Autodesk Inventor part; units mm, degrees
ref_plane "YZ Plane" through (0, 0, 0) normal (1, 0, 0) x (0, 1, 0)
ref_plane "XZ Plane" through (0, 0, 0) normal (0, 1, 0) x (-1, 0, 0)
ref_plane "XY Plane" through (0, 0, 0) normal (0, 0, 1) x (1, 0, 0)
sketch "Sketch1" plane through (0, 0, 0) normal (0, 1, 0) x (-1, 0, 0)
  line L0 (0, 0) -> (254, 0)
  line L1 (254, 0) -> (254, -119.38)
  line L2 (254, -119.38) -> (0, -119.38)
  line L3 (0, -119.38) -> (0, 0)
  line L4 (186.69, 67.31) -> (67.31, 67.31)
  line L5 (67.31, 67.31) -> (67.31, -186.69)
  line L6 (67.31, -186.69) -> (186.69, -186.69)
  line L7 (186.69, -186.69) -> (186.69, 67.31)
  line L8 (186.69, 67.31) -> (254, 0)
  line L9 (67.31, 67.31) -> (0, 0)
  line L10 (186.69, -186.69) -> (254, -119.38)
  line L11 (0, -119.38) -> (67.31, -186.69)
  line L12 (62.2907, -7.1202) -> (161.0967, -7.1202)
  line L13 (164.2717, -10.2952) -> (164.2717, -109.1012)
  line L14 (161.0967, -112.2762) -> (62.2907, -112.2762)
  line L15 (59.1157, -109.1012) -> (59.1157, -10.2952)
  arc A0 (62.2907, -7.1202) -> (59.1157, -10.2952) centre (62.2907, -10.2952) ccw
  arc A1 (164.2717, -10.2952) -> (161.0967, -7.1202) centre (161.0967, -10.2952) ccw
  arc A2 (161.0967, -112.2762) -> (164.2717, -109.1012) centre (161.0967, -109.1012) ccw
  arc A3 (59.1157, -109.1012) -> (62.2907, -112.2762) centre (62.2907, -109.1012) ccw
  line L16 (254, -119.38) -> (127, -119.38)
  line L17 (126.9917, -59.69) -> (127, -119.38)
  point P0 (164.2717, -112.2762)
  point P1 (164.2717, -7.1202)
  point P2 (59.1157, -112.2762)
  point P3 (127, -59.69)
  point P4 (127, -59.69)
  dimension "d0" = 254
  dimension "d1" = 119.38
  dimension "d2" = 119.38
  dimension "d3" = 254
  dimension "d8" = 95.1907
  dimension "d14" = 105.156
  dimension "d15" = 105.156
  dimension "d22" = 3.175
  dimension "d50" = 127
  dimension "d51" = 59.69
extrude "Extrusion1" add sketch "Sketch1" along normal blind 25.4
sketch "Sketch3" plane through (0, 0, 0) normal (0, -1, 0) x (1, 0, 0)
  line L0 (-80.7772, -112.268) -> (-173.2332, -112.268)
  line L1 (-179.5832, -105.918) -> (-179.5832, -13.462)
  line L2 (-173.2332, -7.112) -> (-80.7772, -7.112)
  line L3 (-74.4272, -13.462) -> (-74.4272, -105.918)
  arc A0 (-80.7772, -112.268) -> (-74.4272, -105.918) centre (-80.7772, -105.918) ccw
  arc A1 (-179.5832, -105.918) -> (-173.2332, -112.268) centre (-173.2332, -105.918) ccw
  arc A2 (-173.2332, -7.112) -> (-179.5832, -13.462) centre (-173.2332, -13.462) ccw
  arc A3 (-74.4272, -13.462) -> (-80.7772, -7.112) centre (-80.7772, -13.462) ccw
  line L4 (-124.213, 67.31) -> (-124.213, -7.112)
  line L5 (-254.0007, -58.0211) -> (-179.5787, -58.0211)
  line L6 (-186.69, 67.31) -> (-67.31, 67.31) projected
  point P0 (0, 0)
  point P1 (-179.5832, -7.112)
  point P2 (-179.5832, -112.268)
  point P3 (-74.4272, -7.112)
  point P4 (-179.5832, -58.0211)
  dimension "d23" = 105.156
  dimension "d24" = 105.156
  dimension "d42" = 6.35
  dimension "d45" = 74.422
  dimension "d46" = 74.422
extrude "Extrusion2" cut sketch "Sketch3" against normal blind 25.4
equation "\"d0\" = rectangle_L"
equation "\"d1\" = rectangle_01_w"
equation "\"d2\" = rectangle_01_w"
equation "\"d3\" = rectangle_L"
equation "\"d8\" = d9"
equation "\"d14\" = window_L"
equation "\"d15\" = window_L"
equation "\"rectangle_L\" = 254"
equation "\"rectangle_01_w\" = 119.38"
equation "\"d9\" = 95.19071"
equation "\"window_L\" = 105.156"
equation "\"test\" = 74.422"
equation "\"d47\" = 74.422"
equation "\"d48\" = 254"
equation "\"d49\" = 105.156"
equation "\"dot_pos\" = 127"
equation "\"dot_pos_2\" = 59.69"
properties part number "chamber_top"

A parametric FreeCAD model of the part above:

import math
import FreeCAD as App
import Part
import Sketcher
Q = App.Units.Quantity

doc = App.newDocument("Part")
params = doc.addObject("Spreadsheet::Sheet", "Params")
for row, (alias, value) in enumerate([
    ("sketch1_width", "4.7 in"),
    ("pad1_length", "1 in"),
    ("sketch2_radius", "0.25 in"),
    ("sketch2_width", "3.64 in"),
    ("pocket1_length", "1 in"),
], start=1):
    params.set(f"A{row}", alias)
    params.set(f"B{row}", "=" + value)
    params.setAlias(f"B{row}", alias)

body = doc.addObject("PartDesign::Body", "Body")

# Sketch on XZ plane
sketch1 = body.newObject("Sketcher::SketchObject", "Sketch")
sketch1.AttachmentSupport = (doc.getObject("XZ_Plane"), [""])
sketch1.MapMode = "FlatFace"
sketch1.addGeometry([
    Part.LineSegment(App.Vector(-67, 67, 0), App.Vector(0, 0, 0)),  # 0
    Part.LineSegment(App.Vector(0, 0, 0), App.Vector(0, -119, 0)),  # 1
    Part.LineSegment(App.Vector(0, -119, 0), App.Vector(-67, -187, 0)),  # 2
    Part.LineSegment(App.Vector(-67, -187, 0), App.Vector(-187, -187, 0)),  # 3
    Part.LineSegment(App.Vector(-187, -187, 0), App.Vector(-254, -119, 0)),  # 4
    Part.LineSegment(App.Vector(-254, -119, 0), App.Vector(-254, 0, 0)),  # 5
    Part.LineSegment(App.Vector(-254, 0, 0), App.Vector(-187, 67, 0)),  # 6
    Part.LineSegment(App.Vector(-187, 67, 0), App.Vector(-67, 67, 0)),  # 7
], False)
sketch1.addConstraint([
    Sketcher.Constraint("Coincident", 0, 2, 1, 1),
    Sketcher.Constraint("Coincident", 1, 2, 2, 1),
    Sketcher.Constraint("Coincident", 2, 2, 3, 1),
    Sketcher.Constraint("Coincident", 3, 2, 4, 1),
    Sketcher.Constraint("Coincident", 4, 2, 5, 1),
    Sketcher.Constraint("Coincident", 5, 2, 6, 1),
    Sketcher.Constraint("Coincident", 6, 2, 7, 1),
    Sketcher.Constraint("Coincident", 7, 2, 0, 1),
    Sketcher.Constraint("Vertical", 1),
    Sketcher.Constraint("Horizontal", 3),
    Sketcher.Constraint("Vertical", 5),
    Sketcher.Constraint("Horizontal", 7),
    Sketcher.Constraint("Coincident", 0, 2, -1, 1),
    Sketcher.Constraint("PointOnObject", 5, 2, -1),
    Sketcher.Constraint("Perpendicular", 0, 2),
    Sketcher.Constraint("Perpendicular", 2, 4),
    Sketcher.Constraint("Perpendicular", 4, 6),
    Sketcher.Constraint("Horizontal", 1, 2, 4, 2),
    Sketcher.Constraint("Vertical", 3, 2, 6, 2),
    Sketcher.Constraint("Vertical", 2, 2, 7, 2),
    Sketcher.Constraint("Equal", 7, 1),
    Sketcher.Constraint("DistanceX", 3, 2, 3, 1, Q("4.7 in")),
    Sketcher.Constraint("DistanceX", 4, 2, -1, 1, Q("10 in")),
])
sketch1.setExpression("Constraints[21]", "Params.sketch1_width")
pad1 = body.newObject("PartDesign::Pad", "Pad")
pad1.Profile = sketch1
pad1.setExpression("Length", "Params.pad1_length")
pad1.Reversed = True

# Sketch on XZ plane
sketch2 = body.newObject("Sketcher::SketchObject", "Sketch001")
sketch2.AttachmentSupport = (doc.getObject("XZ_Plane"), [""])
sketch2.MapMode = "FlatFace"
sketch2.addGeometry([
    Part.LineSegment(App.Vector(-173, -112, 0), App.Vector(-81, -112, 0)),  # 0
    Part.ArcOfCircle(Part.Circle(App.Vector(-81, -106, 0), App.Vector(0, 0, 1), 6), math.radians(-90), math.radians(0)),  # 1
    Part.LineSegment(App.Vector(-74, -106, 0), App.Vector(-74, -13, 0)),  # 2
    Part.ArcOfCircle(Part.Circle(App.Vector(-81, -13, 0), App.Vector(0, 0, 1), 6), math.radians(0), math.radians(90)),  # 3
    Part.LineSegment(App.Vector(-81, -7, 0), App.Vector(-173, -7, 0)),  # 4
    Part.ArcOfCircle(Part.Circle(App.Vector(-173, -13, 0), App.Vector(0, 0, 1), 6), math.radians(90), math.radians(180)),  # 5
    Part.LineSegment(App.Vector(-180, -13, 0), App.Vector(-180, -106, 0)),  # 6
    Part.ArcOfCircle(Part.Circle(App.Vector(-173, -106, 0), App.Vector(0, 0, 1), 6), math.radians(180), math.radians(270)),  # 7
], False)
sketch2.addConstraint([
    Sketcher.Constraint("Tangent", 0, 2, 1, 1),
    Sketcher.Constraint("Tangent", 1, 2, 2, 1),
    Sketcher.Constraint("Tangent", 2, 2, 3, 1),
    Sketcher.Constraint("Tangent", 3, 2, 4, 1),
    Sketcher.Constraint("Tangent", 4, 2, 5, 1),
    Sketcher.Constraint("Tangent", 5, 2, 6, 1),
    Sketcher.Constraint("Tangent", 6, 2, 7, 1),
    Sketcher.Constraint("Tangent", 7, 2, 0, 1),
    Sketcher.Constraint("Horizontal", 0),
    Sketcher.Constraint("Vertical", 2),
    Sketcher.Constraint("Horizontal", 4),
    Sketcher.Constraint("Vertical", 6),
    Sketcher.Constraint("Equal", 1, 3),
    Sketcher.Constraint("Equal", 3, 5),
    Sketcher.Constraint("Equal", 5, 7),
    Sketcher.Constraint("Equal", 4, 2),
    Sketcher.Constraint("Radius", 1, Q("0.25 in")),
    Sketcher.Constraint("DistanceX", 0, 1, 0, 2, Q("3.64 in")),
    Sketcher.Constraint("DistanceY", 1, 3, -1, 1, Q("4.17 in")),
    Sketcher.Constraint("DistanceX", 1, 3, -1, 1, Q("3.1802 in")),
])
sketch2.setExpression("Constraints[16]", "Params.sketch2_radius")
sketch2.setExpression("Constraints[17]", "Params.sketch2_width")
pocket1 = body.newObject("PartDesign::Pocket", "Pocket")
pocket1.Profile = sketch2
pocket1.setExpression("Length", "Params.pocket1_length")

doc.recompute()
